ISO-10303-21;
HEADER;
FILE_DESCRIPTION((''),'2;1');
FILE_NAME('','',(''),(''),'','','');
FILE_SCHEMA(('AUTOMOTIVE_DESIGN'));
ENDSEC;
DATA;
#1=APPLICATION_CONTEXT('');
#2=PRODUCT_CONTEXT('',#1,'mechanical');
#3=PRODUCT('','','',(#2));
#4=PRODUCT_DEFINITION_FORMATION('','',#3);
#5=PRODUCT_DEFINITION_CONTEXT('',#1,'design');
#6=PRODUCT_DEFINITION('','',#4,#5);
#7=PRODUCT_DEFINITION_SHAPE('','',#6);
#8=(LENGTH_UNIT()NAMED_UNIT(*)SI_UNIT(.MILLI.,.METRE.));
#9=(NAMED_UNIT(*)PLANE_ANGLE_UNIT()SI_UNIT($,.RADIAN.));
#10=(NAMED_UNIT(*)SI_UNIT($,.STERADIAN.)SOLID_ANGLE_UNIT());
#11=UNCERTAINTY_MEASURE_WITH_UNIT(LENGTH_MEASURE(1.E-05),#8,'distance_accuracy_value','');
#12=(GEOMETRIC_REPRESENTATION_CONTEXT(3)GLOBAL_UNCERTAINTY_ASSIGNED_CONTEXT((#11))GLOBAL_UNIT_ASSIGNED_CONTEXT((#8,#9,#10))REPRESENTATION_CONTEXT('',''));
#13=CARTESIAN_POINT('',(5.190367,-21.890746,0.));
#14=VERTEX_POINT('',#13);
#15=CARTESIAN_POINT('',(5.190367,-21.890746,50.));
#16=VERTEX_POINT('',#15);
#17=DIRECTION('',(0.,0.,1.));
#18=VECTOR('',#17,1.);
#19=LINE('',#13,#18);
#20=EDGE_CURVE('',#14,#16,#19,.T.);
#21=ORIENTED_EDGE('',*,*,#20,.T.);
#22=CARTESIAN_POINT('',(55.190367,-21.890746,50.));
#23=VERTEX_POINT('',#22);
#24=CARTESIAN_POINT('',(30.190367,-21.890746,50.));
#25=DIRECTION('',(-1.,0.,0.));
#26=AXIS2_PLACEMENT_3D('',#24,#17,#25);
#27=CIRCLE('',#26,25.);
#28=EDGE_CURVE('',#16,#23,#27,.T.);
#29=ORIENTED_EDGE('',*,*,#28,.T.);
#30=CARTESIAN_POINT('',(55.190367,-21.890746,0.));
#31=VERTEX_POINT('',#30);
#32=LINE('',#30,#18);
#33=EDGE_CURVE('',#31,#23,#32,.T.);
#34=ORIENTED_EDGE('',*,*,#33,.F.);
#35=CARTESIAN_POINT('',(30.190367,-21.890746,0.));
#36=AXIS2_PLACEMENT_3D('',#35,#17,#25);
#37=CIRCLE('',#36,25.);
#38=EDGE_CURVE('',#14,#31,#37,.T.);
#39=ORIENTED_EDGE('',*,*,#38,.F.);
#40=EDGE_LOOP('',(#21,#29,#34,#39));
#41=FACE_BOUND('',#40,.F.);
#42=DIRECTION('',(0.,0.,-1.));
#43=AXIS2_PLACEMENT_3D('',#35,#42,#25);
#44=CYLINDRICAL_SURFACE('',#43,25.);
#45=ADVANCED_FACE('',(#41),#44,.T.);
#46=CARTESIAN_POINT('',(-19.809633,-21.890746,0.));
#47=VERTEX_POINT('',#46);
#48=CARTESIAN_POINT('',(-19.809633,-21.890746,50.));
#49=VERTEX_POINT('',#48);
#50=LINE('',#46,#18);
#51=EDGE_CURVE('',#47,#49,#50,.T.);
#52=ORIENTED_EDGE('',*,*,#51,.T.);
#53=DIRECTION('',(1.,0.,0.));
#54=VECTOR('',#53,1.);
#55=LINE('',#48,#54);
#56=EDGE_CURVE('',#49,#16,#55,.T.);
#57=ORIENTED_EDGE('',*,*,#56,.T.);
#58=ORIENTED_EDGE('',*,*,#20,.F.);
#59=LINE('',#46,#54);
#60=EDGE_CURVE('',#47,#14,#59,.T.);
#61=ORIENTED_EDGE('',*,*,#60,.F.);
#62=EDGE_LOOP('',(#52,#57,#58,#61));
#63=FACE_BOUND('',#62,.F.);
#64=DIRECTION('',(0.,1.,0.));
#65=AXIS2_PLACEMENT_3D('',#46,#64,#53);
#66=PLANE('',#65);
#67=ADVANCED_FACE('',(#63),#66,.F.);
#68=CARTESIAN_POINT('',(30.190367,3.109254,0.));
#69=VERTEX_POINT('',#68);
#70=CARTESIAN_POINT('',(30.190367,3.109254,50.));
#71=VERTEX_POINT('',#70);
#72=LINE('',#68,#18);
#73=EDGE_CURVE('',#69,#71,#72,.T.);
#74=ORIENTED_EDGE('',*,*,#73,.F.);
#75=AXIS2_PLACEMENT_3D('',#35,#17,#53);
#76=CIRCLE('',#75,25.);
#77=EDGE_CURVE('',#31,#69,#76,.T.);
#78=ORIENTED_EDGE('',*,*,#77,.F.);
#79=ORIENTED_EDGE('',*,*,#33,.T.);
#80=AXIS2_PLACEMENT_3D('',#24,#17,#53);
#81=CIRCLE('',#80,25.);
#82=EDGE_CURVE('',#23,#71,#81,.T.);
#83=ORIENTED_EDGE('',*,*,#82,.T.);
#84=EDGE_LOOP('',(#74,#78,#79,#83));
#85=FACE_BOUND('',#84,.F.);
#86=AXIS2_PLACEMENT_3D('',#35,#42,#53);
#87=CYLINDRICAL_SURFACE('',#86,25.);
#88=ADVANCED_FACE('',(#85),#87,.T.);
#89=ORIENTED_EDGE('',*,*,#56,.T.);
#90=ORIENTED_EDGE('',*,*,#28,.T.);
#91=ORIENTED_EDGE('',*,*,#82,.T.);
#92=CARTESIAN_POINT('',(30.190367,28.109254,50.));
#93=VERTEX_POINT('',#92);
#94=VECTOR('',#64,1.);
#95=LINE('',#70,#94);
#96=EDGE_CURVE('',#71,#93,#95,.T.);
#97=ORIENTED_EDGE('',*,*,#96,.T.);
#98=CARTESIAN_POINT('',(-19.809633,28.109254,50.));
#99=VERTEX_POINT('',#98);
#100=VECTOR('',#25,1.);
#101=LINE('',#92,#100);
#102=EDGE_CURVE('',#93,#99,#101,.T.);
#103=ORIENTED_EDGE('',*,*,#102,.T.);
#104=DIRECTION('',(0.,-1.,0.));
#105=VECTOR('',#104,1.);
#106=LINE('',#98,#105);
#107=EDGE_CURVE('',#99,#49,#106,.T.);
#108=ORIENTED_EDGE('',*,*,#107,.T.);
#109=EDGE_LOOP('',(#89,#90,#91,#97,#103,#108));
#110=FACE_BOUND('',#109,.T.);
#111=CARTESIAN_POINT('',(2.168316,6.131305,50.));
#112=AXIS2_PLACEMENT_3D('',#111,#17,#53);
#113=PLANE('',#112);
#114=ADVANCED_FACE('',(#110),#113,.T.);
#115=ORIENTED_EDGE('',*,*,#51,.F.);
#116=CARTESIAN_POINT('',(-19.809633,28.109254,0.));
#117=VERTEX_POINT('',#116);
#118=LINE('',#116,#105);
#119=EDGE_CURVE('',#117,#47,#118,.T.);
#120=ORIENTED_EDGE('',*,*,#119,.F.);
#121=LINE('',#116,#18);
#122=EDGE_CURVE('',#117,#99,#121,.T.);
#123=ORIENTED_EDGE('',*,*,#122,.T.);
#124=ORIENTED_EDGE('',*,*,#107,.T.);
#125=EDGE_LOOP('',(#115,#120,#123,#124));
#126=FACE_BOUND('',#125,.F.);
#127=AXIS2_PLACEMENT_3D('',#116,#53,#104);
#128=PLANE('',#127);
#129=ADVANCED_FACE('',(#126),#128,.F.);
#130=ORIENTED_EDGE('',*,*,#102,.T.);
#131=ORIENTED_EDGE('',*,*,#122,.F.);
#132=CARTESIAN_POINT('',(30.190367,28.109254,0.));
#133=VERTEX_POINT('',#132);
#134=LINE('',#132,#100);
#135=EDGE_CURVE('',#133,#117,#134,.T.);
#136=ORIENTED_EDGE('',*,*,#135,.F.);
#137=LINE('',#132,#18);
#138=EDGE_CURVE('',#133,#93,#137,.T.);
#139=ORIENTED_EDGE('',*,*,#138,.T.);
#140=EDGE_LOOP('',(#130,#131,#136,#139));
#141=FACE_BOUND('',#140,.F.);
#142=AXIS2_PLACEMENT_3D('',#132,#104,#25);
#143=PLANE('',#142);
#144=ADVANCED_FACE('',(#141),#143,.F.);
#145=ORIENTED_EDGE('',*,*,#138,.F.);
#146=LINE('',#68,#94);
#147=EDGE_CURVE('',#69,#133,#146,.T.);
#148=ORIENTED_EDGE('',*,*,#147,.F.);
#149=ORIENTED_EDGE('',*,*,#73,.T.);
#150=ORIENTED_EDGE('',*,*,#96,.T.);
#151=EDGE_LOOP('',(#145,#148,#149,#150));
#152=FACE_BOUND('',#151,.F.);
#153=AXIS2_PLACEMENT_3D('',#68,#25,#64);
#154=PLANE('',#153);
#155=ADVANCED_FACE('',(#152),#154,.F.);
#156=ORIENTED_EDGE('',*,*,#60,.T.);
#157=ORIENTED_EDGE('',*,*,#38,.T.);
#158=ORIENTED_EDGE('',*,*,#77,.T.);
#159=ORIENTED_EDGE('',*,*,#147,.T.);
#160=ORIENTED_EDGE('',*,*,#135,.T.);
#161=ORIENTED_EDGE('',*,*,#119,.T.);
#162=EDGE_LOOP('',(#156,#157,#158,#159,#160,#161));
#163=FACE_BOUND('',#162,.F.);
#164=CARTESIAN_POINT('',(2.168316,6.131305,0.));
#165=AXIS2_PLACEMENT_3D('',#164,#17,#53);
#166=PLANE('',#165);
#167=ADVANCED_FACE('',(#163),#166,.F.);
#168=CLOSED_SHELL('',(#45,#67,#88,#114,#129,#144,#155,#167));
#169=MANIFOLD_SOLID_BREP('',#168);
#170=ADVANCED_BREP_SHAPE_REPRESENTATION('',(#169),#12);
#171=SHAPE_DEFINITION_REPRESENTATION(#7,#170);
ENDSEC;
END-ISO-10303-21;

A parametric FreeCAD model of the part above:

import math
import FreeCAD as App
import Part
import Sketcher

doc = App.newDocument("Part")
body = doc.addObject("PartDesign::Body", "Body")

sketch1 = body.newObject("Sketcher::SketchObject", "Sketch")
sketch1.AttachmentSupport = (doc.getObject("XY_Plane"), [""])
sketch1.MapMode = "FlatFace"
sketch1.addGeometry([
    Part.LineSegment(App.Vector(30, 28, 0), App.Vector(-20, 28, 0)),
    Part.LineSegment(App.Vector(-20, 28, 0), App.Vector(-20, -22, 0)),
    Part.LineSegment(App.Vector(-20, -22, 0), App.Vector(5, -22, 0)),
    Part.ArcOfCircle(Part.Circle(App.Vector(30, -22, 0), App.Vector(0, 0, 1), 25), math.radians(180), math.radians(360)),
    Part.ArcOfCircle(Part.Circle(App.Vector(30, -22, 0), App.Vector(0, 0, 1), 25), math.radians(0), math.radians(90)),
    Part.LineSegment(App.Vector(30, 3, 0), App.Vector(30, 28, 0)),
], False)
sketch1.addConstraint([
    Sketcher.Constraint("Coincident", 0, 2, 1, 1),
    Sketcher.Constraint("Coincident", 1, 2, 2, 1),
    Sketcher.Constraint("Coincident", 2, 2, 3, 1),
    Sketcher.Constraint("Tangent", 3, 2, 4, 1),
    Sketcher.Constraint("Coincident", 4, 2, 5, 1),
    Sketcher.Constraint("Coincident", 5, 2, 0, 1),
    Sketcher.Constraint("Horizontal", 0),
    Sketcher.Constraint("Vertical", 1),
    Sketcher.Constraint("Horizontal", 2),
    Sketcher.Constraint("Vertical", 5),
    Sketcher.Constraint("Equal", 3, 4),
    Sketcher.Constraint("Horizontal", 4, 3, 1, 2),
    Sketcher.Constraint("Horizontal", 2, 2, 3, 2),
    Sketcher.Constraint("Vertical", 3, 3, 4, 2),
    Sketcher.Constraint("Equal", 0, 1),
    Sketcher.Constraint("Radius", 3, 25.0),
    Sketcher.Constraint("DistanceX", 0, 2, 0, 1, 50.0),
    Sketcher.Constraint("DistanceX", -1, 1, 3, 3, 30.190367),
    Sketcher.Constraint("DistanceY", 3, 3, -1, 1, 21.890746),
])
pad1 = body.newObject("PartDesign::Pad", "Pad")
pad1.Profile = sketch1
pad1.Length = 50

doc.recompute()
